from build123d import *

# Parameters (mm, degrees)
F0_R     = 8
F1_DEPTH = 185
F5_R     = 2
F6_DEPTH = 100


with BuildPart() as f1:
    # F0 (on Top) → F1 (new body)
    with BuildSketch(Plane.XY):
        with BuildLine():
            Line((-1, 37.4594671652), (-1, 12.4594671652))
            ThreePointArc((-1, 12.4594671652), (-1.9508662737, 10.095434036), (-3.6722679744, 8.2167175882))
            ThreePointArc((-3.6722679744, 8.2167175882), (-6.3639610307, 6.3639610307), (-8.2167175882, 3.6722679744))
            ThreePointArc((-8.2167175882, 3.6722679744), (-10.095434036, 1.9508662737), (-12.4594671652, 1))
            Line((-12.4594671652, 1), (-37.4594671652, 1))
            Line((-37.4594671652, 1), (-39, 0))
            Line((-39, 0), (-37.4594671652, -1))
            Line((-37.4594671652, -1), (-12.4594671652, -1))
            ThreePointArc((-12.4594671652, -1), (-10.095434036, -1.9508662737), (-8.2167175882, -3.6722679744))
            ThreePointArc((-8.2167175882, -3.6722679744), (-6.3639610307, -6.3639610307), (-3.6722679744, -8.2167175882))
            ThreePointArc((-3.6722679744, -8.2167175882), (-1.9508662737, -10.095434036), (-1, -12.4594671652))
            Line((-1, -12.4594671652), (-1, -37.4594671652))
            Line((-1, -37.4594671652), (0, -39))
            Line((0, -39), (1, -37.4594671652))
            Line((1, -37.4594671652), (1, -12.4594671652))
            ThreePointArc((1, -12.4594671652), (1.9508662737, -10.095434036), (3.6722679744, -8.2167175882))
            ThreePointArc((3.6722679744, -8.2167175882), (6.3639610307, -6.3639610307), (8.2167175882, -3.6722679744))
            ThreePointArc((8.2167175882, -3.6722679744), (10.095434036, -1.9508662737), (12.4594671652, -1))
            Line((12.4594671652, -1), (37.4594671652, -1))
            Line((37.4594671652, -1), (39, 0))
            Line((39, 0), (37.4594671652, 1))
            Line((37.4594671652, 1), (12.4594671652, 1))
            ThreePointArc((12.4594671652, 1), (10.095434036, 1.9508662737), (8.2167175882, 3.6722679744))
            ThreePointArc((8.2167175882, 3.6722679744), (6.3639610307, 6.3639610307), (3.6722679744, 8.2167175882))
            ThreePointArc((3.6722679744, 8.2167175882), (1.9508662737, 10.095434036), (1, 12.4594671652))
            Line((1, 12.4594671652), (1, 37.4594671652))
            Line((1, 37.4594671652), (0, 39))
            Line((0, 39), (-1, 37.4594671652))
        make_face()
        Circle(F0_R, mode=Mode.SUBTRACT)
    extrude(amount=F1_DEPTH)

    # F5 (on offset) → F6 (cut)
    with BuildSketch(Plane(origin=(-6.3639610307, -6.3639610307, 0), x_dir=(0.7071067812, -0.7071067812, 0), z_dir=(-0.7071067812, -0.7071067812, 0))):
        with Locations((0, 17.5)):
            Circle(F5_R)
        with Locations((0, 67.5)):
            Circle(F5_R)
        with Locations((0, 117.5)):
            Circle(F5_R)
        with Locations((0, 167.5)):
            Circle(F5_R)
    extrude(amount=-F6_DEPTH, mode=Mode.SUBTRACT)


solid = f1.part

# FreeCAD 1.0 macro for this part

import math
import FreeCAD as App
import Part
import Sketcher

V = App.Vector
Q = App.Units.Quantity

doc = App.newDocument("Part")
params = doc.addObject("Spreadsheet::Sheet", "Params")
for row, (alias, value) in enumerate([
    ("sketch1_diameter", "16 mm"),
    ("sketch1_radius", "9 mm"),
    ("sketch1_width", "25 mm"),
    ("pad1_length", "185 mm"),
    ("sketch2_diameter", "4 mm"),
    ("pocket1_length", "100 mm"),
], start=1):
    params.set(f"A{row}", alias)
    params.set(f"B{row}", "=" + value)
    params.setAlias(f"B{row}", alias)

body = doc.addObject("PartDesign::Body", "Body")

sketch1 = body.newObject("Sketcher::SketchObject", "Sketch")
sketch1.AttachmentSupport = (doc.getObject("XY_Plane"), [""])
sketch1.MapMode = "FlatFace"
sketch1.addGeometry([
    Part.LineSegment(V(-1, 37.459467, 0), V(-1, 12.459467, 0)),
    Part.ArcOfCircle(Part.Circle(V(-7.983895, 13.895297, 0), V(0, 0, 1), 7.129965), math.radians(-52.791358), math.radians(-11.617653)),
    Part.ArcOfCircle(Part.Circle(V(0, 0, 0), V(0, 0, 1), 9), math.radians(114.081128), math.radians(155.918872)),
    Part.ArcOfCircle(Part.Circle(V(-13.895297, 7.983895, 0), V(0, 0, 1), 7.129965), math.radians(-78.382347), math.radians(-37.208642)),
    Part.LineSegment(V(-12.459467, 1, 0), V(-37.459467, 1, 0)),
    Part.LineSegment(V(-37.459467, 1, 0), V(-39, 0, 0)),
    Part.LineSegment(V(-39, 0, 0), V(-37.459467, -1, 0)),
    Part.LineSegment(V(-37.459467, -1, 0), V(-12.459467, -1, 0)),
    Part.ArcOfCircle(Part.Circle(V(-13.895297, -7.983895, 0), V(0, 0, 1), 7.129965), math.radians(37.208642), math.radians(78.382347)),
    Part.ArcOfCircle(Part.Circle(V(0, 0, 0), V(0, 0, 1), 9), math.radians(-155.918872), math.radians(-114.081128)),
    Part.ArcOfCircle(Part.Circle(V(-7.983895, -13.895297, 0), V(0, 0, 1), 7.129965), math.radians(11.617653), math.radians(52.791358)),
    Part.LineSegment(V(-1, -12.459467, 0), V(-1, -37.459467, 0)),
    Part.LineSegment(V(-1, -37.459467, 0), V(0, -39, 0)),
    Part.LineSegment(V(0, -39, 0), V(1, -37.459467, 0)),
    Part.LineSegment(V(1, -37.459467, 0), V(1, -12.459467, 0)),
    Part.ArcOfCircle(Part.Circle(V(7.983895, -13.895297, 0), V(0, 0, 1), 7.129965), math.radians(127.208642), math.radians(168.382347)),
    Part.ArcOfCircle(Part.Circle(V(0, 0, 0), V(0, 0, 1), 9), math.radians(-65.918872), math.radians(-24.081128)),
    Part.ArcOfCircle(Part.Circle(V(13.895297, -7.983895, 0), V(0, 0, 1), 7.129965), math.radians(101.617653), math.radians(142.791358)),
    Part.LineSegment(V(12.459467, -1, 0), V(37.459467, -1, 0)),
    Part.LineSegment(V(37.459467, -1, 0), V(39, 0, 0)),
    Part.LineSegment(V(39, 0, 0), V(37.459467, 1, 0)),
    Part.LineSegment(V(37.459467, 1, 0), V(12.459467, 1, 0)),
    Part.ArcOfCircle(Part.Circle(V(13.895297, 7.983895, 0), V(0, 0, 1), 7.129965), math.radians(-142.791358), math.radians(-101.617653)),
    Part.ArcOfCircle(Part.Circle(V(0, 0, 0), V(0, 0, 1), 9), math.radians(24.081128), math.radians(65.918872)),
    Part.ArcOfCircle(Part.Circle(V(7.983895, 13.895297, 0), V(0, 0, 1), 7.129965), math.radians(-168.382347), math.radians(-127.208642)),
    Part.LineSegment(V(1, 12.459467, 0), V(1, 37.459467, 0)),
    Part.LineSegment(V(1, 37.459467, 0), V(0, 39, 0)),
    Part.LineSegment(V(0, 39, 0), V(-1, 37.459467, 0)),
    Part.Circle(V(0, 0, 0), V(0, 0, 1), 8),
], False)
sketch1.addConstraint([
    Sketcher.Constraint("Coincident", 0, 2, 1, 2),
    Sketcher.Constraint("Coincident", 1, 1, 2, 1),
    Sketcher.Constraint("Coincident", 2, 2, 3, 2),
    Sketcher.Constraint("Coincident", 3, 1, 4, 1),
    Sketcher.Constraint("Coincident", 4, 2, 5, 1),
    Sketcher.Constraint("Coincident", 5, 2, 6, 1),
    Sketcher.Constraint("Coincident", 6, 2, 7, 1),
    Sketcher.Constraint("Coincident", 7, 2, 8, 2),
    Sketcher.Constraint("Coincident", 8, 1, 9, 1),
    Sketcher.Constraint("Coincident", 9, 2, 10, 2),
    Sketcher.Constraint("Coincident", 10, 1, 11, 1),
    Sketcher.Constraint("Coincident", 11, 2, 12, 1),
    Sketcher.Constraint("Coincident", 12, 2, 13, 1),
    Sketcher.Constraint("Coincident", 13, 2, 14, 1),
    Sketcher.Constraint("Coincident", 14, 2, 15, 2),
    Sketcher.Constraint("Coincident", 15, 1, 16, 1),
    Sketcher.Constraint("Coincident", 16, 2, 17, 2),
    Sketcher.Constraint("Coincident", 17, 1, 18, 1),
    Sketcher.Constraint("Coincident", 18, 2, 19, 1),
    Sketcher.Constraint("Coincident", 19, 2, 20, 1),
    Sketcher.Constraint("Coincident", 20, 2, 21, 1),
    Sketcher.Constraint("Coincident", 21, 2, 22, 2),
    Sketcher.Constraint("Coincident", 22, 1, 23, 1),
    Sketcher.Constraint("Coincident", 23, 2, 24, 2),
    Sketcher.Constraint("Coincident", 24, 1, 25, 1),
    Sketcher.Constraint("Coincident", 25, 2, 26, 1),
    Sketcher.Constraint("Coincident", 26, 2, 27, 1),
    Sketcher.Constraint("Coincident", 27, 2, 0, 1),
    Sketcher.Constraint("Vertical", 0),
    Sketcher.Constraint("Horizontal", 4),
    Sketcher.Constraint("Horizontal", 7),
    Sketcher.Constraint("Vertical", 11),
    Sketcher.Constraint("Vertical", 14),
    Sketcher.Constraint("Horizontal", 18),
    Sketcher.Constraint("Horizontal", 21),
    Sketcher.Constraint("Vertical", 25),
    Sketcher.Constraint("Coincident", 2, 3, -1, 1),
    Sketcher.Constraint("Coincident", 9, 3, -1, 1),
    Sketcher.Constraint("Coincident", 16, 3, -1, 1),
    Sketcher.Constraint("Coincident", 23, 3, -1, 1),
    Sketcher.Constraint("Coincident", 28, 3, -1, 1),
    Sketcher.Constraint("Equal", 1, 3),
    Sketcher.Constraint("Equal", 3, 8),
    Sketcher.Constraint("Equal", 2, 9),
    Sketcher.Constraint("Equal", 8, 10),
    Sketcher.Constraint("Equal", 10, 15),
    Sketcher.Constraint("Equal", 9, 16),
    Sketcher.Constraint("Equal", 15, 17),
    Sketcher.Constraint("Equal", 17, 22),
    Sketcher.Constraint("Equal", 16, 23),
    Sketcher.Constraint("Equal", 22, 24),
    Sketcher.Constraint("Symmetric", 1, 3, 15, 3, -1, 1),
    Sketcher.Constraint("Symmetric", 3, 3, 17, 3, -1, 1),
    Sketcher.Constraint("Symmetric", 8, 3, 22, 3, -1, 1),
    Sketcher.Constraint("Symmetric", 10, 3, 24, 3, -1, 1),
    Sketcher.Constraint("Symmetric", 4, 2, 18, 2, -1, 1),
    Sketcher.Constraint("Symmetric", 5, 2, 19, 2, -1, 1),
    Sketcher.Constraint("Symmetric", 6, 2, 20, 2, -1, 1),
    Sketcher.Constraint("Symmetric", 11, 2, 25, 2, -1, 1),
    Sketcher.Constraint("Symmetric", 12, 2, 26, 2, -1, 1),
    Sketcher.Constraint("Symmetric", 13, 2, 27, 2, -1, 1),
    Sketcher.Constraint("Symmetric", 10, 3, 15, 3, -2),
    Sketcher.Constraint("Symmetric", 8, 3, 17, 3, -2),
    Sketcher.Constraint("Symmetric", 11, 2, 13, 2, -2),
    Sketcher.Constraint("Symmetric", 6, 2, 18, 2, -2),
    Sketcher.Constraint("PointOnObject", 5, 2, -1),
    Sketcher.Constraint("PointOnObject", 12, 2, -2),
    Sketcher.Constraint("Perpendicular", 5, 12),
    Sketcher.Constraint("Equal", 21, 0),
    Sketcher.Constraint("Equal", 6, 12),
    Sketcher.Constraint("Diameter", 28, Q("16 mm")),
    Sketcher.Constraint("Radius", 2, Q("9 mm")),
    Sketcher.Constraint("DistanceX", 4, 2, 4, 1, Q("25 mm")),
    Sketcher.Constraint("DistanceX", 0, 2, -1, 1, Q("1 mm")),
    Sketcher.Constraint("DistanceX", 5, 2, -1, 1, Q("39 mm")),
    Sketcher.Constraint("DistanceY", 12, 2, -1, 1, Q("39 mm")),
    Sketcher.Constraint("Radius", 1, Q("7.129965 mm")),
    Sketcher.Constraint("DistanceX", 3, 1, 1, 1, Q("8.787199 mm")),
    Sketcher.Constraint("DistanceY", 10, 1, 8, 1, Q("8.787199 mm")),
    Sketcher.Constraint("Distance", 5, Q("1.836639 mm")),
])
sketch1.setExpression("Constraints[70]", "Params.sketch1_diameter")
sketch1.setExpression("Constraints[71]", "Params.sketch1_radius")
sketch1.setExpression("Constraints[72]", "Params.sketch1_width")
pad1 = body.newObject("PartDesign::Pad", "Pad")
pad1.Profile = sketch1
pad1.setExpression("Length", "Params.pad1_length")

sketch2 = body.newObject("Sketcher::SketchObject", "Sketch001")
sketch2.Placement = App.Placement(V(-6.363961, -6.363961, 0), App.Rotation(V(0.707106781, -0.707106781, 0), V(0, 0, 0.999999999), V(-0.707106781, -0.707106781, 0), "ZXY"))
sketch2.addGeometry([
    Part.Circle(V(0, 17.5, 0), V(0, 0, 1), 2),
    Part.Circle(V(0, 67.5, 0), V(0, 0, 1), 2),
    Part.Circle(V(0, 117.5, 0), V(0, 0, 1), 2),
    Part.Circle(V(0, 167.5, 0), V(0, 0, 1), 2),
], False)
sketch2.addConstraint([
    Sketcher.Constraint("Equal", 0, 1),
    Sketcher.Constraint("Equal", 1, 2),
    Sketcher.Constraint("Equal", 2, 3),
    Sketcher.Constraint("PointOnObject", 0, 3, -2),
    Sketcher.Constraint("PointOnObject", 1, 3, -2),
    Sketcher.Constraint("PointOnObject", 2, 3, -2),
    Sketcher.Constraint("PointOnObject", 3, 3, -2),
    Sketcher.Constraint("Diameter", 0, Q("4 mm")),
    Sketcher.Constraint("DistanceY", 0, 3, 1, 3, Q("50 mm")),
    Sketcher.Constraint("DistanceY", 1, 3, 2, 3, Q("50 mm")),
    Sketcher.Constraint("DistanceY", 2, 3, 3, 3, Q("50 mm")),
    Sketcher.Constraint("DistanceY", -1, 1, 0, 3, Q("17.5 mm")),
])
sketch2.setExpression("Constraints[7]", "Params.sketch2_diameter")
pocket1 = body.newObject("PartDesign::Pocket", "Pocket")
pocket1.Profile = sketch2
pocket1.setExpression("Length", "Params.pocket1_length")

doc.recompute()
